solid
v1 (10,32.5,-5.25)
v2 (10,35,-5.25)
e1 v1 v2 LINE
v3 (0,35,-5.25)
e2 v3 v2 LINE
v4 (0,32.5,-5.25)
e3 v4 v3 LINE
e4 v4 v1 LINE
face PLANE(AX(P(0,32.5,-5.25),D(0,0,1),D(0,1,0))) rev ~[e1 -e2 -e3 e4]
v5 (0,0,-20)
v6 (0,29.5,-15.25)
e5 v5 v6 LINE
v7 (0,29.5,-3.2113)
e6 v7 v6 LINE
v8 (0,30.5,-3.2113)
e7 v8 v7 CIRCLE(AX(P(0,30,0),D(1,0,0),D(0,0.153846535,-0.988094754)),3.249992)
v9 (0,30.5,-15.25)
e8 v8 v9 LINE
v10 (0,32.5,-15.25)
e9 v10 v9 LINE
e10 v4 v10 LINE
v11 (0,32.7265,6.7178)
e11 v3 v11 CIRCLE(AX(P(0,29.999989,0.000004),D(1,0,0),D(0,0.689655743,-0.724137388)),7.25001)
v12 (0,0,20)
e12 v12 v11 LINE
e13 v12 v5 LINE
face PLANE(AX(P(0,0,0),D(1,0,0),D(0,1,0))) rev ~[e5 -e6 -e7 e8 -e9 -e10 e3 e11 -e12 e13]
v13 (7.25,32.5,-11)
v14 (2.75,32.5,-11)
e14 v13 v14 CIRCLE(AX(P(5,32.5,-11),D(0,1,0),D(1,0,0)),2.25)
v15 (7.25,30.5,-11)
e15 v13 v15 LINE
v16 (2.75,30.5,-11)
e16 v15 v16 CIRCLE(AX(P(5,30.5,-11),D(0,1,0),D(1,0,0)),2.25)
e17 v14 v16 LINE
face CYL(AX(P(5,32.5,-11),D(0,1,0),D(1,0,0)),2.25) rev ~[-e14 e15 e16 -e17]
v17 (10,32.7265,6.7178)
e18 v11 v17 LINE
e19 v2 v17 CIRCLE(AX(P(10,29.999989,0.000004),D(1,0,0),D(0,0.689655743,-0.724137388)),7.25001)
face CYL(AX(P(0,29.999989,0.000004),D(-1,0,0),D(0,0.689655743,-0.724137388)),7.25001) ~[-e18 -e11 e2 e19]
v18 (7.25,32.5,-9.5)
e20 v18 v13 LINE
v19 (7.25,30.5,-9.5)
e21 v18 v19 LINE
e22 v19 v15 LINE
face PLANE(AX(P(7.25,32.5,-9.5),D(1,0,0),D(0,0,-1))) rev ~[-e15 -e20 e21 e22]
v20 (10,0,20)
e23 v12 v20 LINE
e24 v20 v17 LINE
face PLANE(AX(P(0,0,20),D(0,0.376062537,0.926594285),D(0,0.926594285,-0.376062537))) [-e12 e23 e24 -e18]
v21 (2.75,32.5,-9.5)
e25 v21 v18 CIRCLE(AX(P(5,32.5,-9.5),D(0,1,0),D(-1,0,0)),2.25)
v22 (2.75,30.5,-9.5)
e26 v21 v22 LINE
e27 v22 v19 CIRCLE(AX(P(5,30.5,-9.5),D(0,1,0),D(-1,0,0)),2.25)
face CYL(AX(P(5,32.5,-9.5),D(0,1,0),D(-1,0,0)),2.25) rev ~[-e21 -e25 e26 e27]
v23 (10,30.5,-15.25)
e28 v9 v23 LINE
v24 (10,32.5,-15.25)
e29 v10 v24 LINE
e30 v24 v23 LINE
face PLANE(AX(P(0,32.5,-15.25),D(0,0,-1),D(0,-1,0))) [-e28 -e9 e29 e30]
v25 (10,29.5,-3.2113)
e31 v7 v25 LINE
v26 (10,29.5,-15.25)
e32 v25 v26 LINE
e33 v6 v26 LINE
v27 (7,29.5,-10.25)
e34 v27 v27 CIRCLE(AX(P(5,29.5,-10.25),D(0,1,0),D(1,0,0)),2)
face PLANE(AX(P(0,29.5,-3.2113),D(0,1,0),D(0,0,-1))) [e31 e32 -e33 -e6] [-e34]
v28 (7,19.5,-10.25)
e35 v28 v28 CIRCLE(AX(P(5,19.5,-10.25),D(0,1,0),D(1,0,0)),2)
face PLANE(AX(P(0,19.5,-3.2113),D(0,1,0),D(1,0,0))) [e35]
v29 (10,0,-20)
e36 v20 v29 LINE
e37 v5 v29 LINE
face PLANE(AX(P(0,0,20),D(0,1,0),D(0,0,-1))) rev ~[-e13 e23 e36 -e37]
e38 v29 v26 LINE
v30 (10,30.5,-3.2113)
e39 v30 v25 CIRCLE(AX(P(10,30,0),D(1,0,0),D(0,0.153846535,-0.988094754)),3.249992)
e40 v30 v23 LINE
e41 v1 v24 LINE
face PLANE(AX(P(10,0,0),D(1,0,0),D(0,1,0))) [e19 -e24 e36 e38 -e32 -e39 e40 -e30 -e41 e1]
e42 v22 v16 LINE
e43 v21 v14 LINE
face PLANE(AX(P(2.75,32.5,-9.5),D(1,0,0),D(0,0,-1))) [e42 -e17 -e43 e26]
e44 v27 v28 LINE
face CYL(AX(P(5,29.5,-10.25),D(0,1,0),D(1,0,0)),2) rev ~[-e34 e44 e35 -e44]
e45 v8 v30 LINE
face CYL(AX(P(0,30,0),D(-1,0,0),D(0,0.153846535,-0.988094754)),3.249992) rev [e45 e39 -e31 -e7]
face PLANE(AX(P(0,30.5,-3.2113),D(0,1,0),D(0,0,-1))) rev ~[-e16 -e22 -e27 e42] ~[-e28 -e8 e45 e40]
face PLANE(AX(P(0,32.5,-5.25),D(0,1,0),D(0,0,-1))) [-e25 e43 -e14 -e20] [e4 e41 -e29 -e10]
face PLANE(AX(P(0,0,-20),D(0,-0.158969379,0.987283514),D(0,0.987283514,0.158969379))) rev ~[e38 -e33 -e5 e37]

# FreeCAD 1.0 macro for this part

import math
import FreeCAD as App
import Part
import Sketcher
from FreeCAD import Vector

doc = App.newDocument("Part")
body = doc.addObject("PartDesign::Body", "Body")

# Sketch on YZ plane
sketch1 = doc.addObject("Sketcher::SketchObject", "Sketch")
body.addObject(sketch1)
sketch1.AttachmentSupport = (doc.YZ_Plane, [""])
sketch1.MapMode = "FlatFace"
sketch1.addGeometry([
    Part.ArcOfCircle(Part.Circle(Vector(30, 0, 0), Vector(0, 0, 1), 3.2), math.radians(-81), math.radians(261)),  # 0
    Part.LineSegment(Vector(30.5, -3.2, 0), Vector(30.5, -15.2, 0)),  # 1
    Part.LineSegment(Vector(30.5, -15.2, 0), Vector(32.5, -15.2, 0)),  # 2
    Part.LineSegment(Vector(32.5, -15.2, 0), Vector(32.5, -5.2, 0)),  # 3
    Part.LineSegment(Vector(32.5, -5.2, 0), Vector(35, -5.2, 0)),  # 4
    Part.ArcOfCircle(Part.Circle(Vector(30, 0, 0), Vector(0, 0, 1), 7.2), math.radians(-46), math.radians(68)),  # 5
    Part.LineSegment(Vector(32.7, 6.7, 0), Vector(0, 20, 0)),  # 6
    Part.LineSegment(Vector(0, 20, 0), Vector(0, -20, 0)),  # 7
    Part.LineSegment(Vector(0, -20, 0), Vector(29.5, -15.2, 0)),  # 8
    Part.LineSegment(Vector(29.5, -15.2, 0), Vector(29.5, -3.2, 0)),  # 9
], False)
sketch1.addConstraint([
    Sketcher.Constraint("Coincident", 0, 1, 1, 1),
    Sketcher.Constraint("Coincident", 1, 2, 2, 1),
    Sketcher.Constraint("Coincident", 2, 2, 3, 1),
    Sketcher.Constraint("Coincident", 3, 2, 4, 1),
    Sketcher.Constraint("Coincident", 4, 2, 5, 1),
    Sketcher.Constraint("Tangent", 5, 2, 6, 1),
    Sketcher.Constraint("Coincident", 6, 2, 7, 1),
    Sketcher.Constraint("Coincident", 7, 2, 8, 1),
    Sketcher.Constraint("Coincident", 8, 2, 9, 1),
    Sketcher.Constraint("Coincident", 9, 2, 0, 2),
    Sketcher.Constraint("Vertical", 1),
    Sketcher.Constraint("Horizontal", 2),
    Sketcher.Constraint("Vertical", 3),
    Sketcher.Constraint("Horizontal", 4),
    Sketcher.Constraint("Vertical", 7),
    Sketcher.Constraint("Vertical", 9),
    Sketcher.Constraint("Coincident", 5, 3, 0, 3),
    Sketcher.Constraint("Symmetric", 6, 2, 7, 2, -1, 1),
    Sketcher.Constraint("PointOnObject", 0, 3, -1),
    Sketcher.Constraint("Horizontal", 2, 2, 8, 2),
    Sketcher.Constraint("Horizontal", 0, 1, 9, 2),
    Sketcher.Constraint("DistanceX", 2, 1, 2, 2, 2.0),
    Sketcher.Constraint("DistanceY", 3, 1, 3, 2, 10.0),
    Sketcher.Constraint("DistanceY", 7, 2, 7, 1, 40.0),
    Sketcher.Constraint("Radius", 0, 3.25),
    Sketcher.Constraint("Radius", 5, 7.25),
    Sketcher.Constraint("DistanceX", -1, 1, 0, 3, 30.0),
    Sketcher.Constraint("DistanceX", 8, 2, 1, 2, 1.0),
    Sketcher.Constraint("DistanceX", 4, 1, 4, 2, 2.5),
])
pad1 = doc.addObject("PartDesign::Pad", "Pad")
body.addObject(pad1)
pad1.Profile = sketch1
pad1.Length = 10

# Sketch on XZ plane
sketch2 = doc.addObject("Sketcher::SketchObject", "Sketch001")
body.addObject(sketch2)
sketch2.AttachmentSupport = (doc.XZ_Plane, [""])
sketch2.MapMode = "FlatFace"
sketch2.AttachmentOffset = App.Placement(Vector(0, 0, -32.5), App.Rotation())
sketch2.addGeometry([
    Part.LineSegment(Vector(2.8, -11, 0), Vector(2.8, -9.5, 0)),
    Part.ArcOfCircle(Part.Circle(Vector(5, -9.5, 0), Vector(0, 0, 1), 2.2), math.radians(0), math.radians(180)),
    Part.LineSegment(Vector(7.2, -9.5, 0), Vector(7.2, -11, 0)),
    Part.ArcOfCircle(Part.Circle(Vector(5, -11, 0), Vector(0, 0, 1), 2.2), math.radians(180), math.radians(360)),
], False)
sketch2.addConstraint([
    Sketcher.Constraint("Tangent", 0, 2, 1, 2),
    Sketcher.Constraint("Tangent", 1, 1, 2, 1),
    Sketcher.Constraint("Tangent", 2, 2, 3, 2),
    Sketcher.Constraint("Tangent", 3, 1, 0, 1),
    Sketcher.Constraint("Vertical", 0),
    Sketcher.Constraint("Vertical", 2),
    Sketcher.Constraint("Radius", 1, 2.25),
    Sketcher.Constraint("DistanceY", 0, 1, 0, 2, 1.5),
    Sketcher.Constraint("DistanceX", -1, 1, 1, 3, 5.0),
    Sketcher.Constraint("DistanceY", 3, 3, -1, 1, 11.0),
])
pocket1 = doc.addObject("PartDesign::Pocket", "Pocket")
body.addObject(pocket1)
pocket1.Profile = sketch2
pocket1.Length = 2
pocket1.Reversed = True

# Sketch on XZ plane
sketch3 = doc.addObject("Sketcher::SketchObject", "Sketch002")
body.addObject(sketch3)
sketch3.AttachmentSupport = (doc.XZ_Plane, [""])
sketch3.MapMode = "FlatFace"
sketch3.AttachmentOffset = App.Placement(Vector(0, 0, -29.5), App.Rotation())
sketch3.addGeometry(Part.Circle(Vector(5, -10.2, 0), Vector(0, 0, 1), 2), False)
sketch3.addConstraint([
    Sketcher.Constraint("Diameter", 0, 4.0),
    Sketcher.Constraint("DistanceX", -1, 1, 0, 3, 5.0),
    Sketcher.Constraint("DistanceY", 0, 3, -1, 1, 10.25),
])
pocket2 = doc.addObject("PartDesign::Pocket", "Pocket001")
body.addObject(pocket2)
pocket2.Profile = sketch3
pocket2.Length = 10
pocket2.Reversed = True

doc.recompute()
